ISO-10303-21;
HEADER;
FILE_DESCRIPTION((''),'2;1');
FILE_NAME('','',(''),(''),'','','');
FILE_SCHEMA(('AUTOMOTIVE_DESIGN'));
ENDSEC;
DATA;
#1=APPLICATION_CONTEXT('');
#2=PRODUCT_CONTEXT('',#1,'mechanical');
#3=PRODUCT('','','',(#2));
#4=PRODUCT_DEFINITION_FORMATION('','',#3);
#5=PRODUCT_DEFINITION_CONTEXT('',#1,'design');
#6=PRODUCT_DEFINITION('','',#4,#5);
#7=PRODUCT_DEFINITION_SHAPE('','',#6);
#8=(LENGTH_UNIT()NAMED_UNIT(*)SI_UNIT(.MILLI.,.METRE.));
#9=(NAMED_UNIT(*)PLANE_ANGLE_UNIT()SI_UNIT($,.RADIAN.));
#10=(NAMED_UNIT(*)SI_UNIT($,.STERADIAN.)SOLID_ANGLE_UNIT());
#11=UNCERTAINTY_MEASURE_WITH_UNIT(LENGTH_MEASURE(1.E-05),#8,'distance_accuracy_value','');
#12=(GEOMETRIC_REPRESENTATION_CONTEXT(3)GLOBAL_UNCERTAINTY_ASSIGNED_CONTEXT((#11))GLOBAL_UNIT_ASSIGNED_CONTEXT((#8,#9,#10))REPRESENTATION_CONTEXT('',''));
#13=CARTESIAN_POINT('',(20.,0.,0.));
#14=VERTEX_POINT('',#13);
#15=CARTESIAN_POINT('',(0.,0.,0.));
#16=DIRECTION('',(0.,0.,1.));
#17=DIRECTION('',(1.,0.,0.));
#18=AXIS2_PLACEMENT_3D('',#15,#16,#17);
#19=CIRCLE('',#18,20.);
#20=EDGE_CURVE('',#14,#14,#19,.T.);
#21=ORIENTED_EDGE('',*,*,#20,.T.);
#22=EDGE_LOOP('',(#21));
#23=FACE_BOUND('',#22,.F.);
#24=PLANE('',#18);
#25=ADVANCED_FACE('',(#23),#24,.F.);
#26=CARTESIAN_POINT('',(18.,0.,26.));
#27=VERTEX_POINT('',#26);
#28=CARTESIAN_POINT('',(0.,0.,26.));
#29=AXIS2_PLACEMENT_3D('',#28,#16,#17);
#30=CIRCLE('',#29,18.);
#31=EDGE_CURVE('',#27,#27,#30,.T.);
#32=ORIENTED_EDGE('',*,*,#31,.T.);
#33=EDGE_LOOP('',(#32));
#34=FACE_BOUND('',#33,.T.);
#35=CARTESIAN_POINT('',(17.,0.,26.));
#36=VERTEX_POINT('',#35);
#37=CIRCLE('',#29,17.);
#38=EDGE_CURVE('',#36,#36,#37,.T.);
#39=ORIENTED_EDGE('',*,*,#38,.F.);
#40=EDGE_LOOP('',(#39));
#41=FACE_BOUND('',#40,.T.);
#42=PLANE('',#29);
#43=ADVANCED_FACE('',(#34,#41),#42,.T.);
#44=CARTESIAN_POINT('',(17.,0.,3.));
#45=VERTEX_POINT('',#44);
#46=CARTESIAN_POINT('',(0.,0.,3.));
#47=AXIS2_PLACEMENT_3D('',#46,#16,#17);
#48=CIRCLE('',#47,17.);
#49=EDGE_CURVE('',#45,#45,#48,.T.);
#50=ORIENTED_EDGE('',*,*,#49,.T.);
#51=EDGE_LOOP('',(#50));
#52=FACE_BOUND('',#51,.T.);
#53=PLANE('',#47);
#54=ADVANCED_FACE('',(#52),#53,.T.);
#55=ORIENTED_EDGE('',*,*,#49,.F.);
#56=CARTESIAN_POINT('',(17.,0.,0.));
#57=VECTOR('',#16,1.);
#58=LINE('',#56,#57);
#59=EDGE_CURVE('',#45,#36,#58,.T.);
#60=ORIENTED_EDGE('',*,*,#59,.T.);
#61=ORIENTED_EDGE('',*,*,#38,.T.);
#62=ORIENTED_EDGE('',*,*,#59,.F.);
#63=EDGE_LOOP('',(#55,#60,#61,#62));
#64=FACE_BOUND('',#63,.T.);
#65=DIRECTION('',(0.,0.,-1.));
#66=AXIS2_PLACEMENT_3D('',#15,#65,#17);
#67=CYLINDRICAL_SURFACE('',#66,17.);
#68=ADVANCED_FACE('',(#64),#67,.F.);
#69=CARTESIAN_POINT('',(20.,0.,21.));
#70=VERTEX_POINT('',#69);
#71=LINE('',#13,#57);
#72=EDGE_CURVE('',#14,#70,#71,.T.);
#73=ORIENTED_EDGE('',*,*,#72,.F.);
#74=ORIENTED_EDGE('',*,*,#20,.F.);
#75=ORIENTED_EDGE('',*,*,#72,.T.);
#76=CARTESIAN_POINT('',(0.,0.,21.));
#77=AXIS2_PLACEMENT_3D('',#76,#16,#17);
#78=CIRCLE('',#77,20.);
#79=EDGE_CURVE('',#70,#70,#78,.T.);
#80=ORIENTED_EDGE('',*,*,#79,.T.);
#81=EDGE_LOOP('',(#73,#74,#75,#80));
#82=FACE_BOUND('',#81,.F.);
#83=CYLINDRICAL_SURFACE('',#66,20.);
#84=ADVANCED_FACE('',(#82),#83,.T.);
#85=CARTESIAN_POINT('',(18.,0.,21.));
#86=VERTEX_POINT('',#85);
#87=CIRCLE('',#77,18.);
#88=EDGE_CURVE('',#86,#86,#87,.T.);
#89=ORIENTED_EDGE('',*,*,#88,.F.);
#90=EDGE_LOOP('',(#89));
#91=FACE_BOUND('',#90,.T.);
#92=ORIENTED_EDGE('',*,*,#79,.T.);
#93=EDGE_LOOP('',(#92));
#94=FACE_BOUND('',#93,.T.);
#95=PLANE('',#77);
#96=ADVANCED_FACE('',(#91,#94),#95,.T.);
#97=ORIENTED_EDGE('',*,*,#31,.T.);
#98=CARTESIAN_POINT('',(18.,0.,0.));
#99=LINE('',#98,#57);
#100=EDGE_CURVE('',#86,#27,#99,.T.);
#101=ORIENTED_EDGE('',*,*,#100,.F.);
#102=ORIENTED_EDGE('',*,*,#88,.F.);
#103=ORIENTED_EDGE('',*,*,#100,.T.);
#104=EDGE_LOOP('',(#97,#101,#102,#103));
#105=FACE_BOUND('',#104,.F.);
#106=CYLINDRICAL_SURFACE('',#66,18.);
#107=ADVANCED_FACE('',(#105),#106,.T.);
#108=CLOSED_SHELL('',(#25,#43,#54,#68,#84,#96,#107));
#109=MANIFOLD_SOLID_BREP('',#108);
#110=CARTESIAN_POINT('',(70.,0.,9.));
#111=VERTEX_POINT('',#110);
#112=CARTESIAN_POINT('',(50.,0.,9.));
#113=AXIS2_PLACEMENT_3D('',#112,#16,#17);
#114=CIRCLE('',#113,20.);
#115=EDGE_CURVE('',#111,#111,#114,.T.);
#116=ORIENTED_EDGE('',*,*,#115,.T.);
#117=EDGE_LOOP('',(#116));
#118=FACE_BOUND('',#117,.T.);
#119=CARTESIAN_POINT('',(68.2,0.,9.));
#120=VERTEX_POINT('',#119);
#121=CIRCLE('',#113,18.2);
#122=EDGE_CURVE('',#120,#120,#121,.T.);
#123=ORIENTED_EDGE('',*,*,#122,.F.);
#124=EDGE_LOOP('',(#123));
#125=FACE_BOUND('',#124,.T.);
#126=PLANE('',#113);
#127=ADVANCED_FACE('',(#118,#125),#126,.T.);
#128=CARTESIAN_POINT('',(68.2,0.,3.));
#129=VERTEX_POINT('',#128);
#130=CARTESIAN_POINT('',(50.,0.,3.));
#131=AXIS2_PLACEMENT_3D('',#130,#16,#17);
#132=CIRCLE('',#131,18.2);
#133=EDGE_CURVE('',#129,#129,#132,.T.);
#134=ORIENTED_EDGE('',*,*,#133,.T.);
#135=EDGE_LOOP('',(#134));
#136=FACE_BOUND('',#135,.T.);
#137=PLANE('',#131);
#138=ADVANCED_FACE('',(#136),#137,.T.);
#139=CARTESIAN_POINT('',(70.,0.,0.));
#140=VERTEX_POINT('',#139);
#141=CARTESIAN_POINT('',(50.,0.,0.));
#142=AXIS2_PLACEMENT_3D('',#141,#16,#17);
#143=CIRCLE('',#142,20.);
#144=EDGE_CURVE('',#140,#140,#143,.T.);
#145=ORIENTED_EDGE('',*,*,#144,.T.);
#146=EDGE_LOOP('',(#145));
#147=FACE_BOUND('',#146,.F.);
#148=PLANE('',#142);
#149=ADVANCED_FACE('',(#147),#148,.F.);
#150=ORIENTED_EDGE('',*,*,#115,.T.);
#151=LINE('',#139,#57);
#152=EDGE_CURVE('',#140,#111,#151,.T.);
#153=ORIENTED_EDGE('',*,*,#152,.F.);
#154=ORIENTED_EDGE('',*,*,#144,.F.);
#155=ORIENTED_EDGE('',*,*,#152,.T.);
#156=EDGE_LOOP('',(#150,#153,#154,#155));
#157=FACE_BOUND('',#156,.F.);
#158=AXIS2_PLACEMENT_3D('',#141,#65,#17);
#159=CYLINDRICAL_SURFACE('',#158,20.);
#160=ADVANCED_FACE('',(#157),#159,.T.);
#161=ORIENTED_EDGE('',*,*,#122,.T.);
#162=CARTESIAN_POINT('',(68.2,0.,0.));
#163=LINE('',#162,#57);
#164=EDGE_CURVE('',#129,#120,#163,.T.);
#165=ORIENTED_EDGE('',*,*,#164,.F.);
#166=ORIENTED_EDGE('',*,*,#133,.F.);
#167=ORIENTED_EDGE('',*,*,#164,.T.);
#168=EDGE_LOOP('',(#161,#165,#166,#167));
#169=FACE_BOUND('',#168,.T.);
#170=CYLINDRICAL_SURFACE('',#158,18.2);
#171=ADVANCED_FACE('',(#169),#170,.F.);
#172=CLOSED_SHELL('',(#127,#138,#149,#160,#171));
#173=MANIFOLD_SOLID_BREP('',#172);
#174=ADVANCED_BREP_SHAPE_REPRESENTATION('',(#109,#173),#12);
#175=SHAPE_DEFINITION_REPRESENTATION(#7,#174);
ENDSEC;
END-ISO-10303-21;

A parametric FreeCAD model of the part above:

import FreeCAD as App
import Part
import Sketcher

V = App.Vector
Q = App.Units.Quantity

doc = App.newDocument("Part")
body = doc.addObject("PartDesign::Body", "Body")

# Sketch on XY plane
sketch1 = body.newObject("Sketcher::SketchObject", "Sketch")
sketch1.AttachmentSupport = (doc.getObject("XY_Plane"), [""])
sketch1.MapMode = "FlatFace"
sketch1.addGeometry(Part.Circle(V(0, 0, 0), V(0, 0, 1), 17), False)
sketch1.addConstraint(Sketcher.Constraint("Coincident", 0, 3, -1, 1))
sketch1.addConstraint(Sketcher.Constraint("Diameter", 0, Q("34 mm")))
pad1 = body.newObject("PartDesign::Pad", "Pad")
pad1.Profile = sketch1
pad1.Length = 3

# Sketch on XY plane
sketch2 = body.newObject("Sketcher::SketchObject", "Sketch001")
sketch2.AttachmentSupport = (doc.getObject("XY_Plane"), [""])
sketch2.MapMode = "FlatFace"
sketch2.addGeometry(Part.Circle(V(0, 0, 0), V(0, 0, 1), 18), False)
sketch2.addGeometry(Part.Circle(V(0, 0, 0), V(0, 0, 1), 17), False)
sketch2.addConstraint(Sketcher.Constraint("Coincident", 0, 3, -1, 1))
sketch2.addConstraint(Sketcher.Constraint("Coincident", 1, 3, -1, 1))
sketch2.addConstraint(Sketcher.Constraint("Diameter", 0, Q("36 mm")))
sketch2.addConstraint(Sketcher.Constraint("Diameter", 1, Q("34 mm")))
pad2 = body.newObject("PartDesign::Pad", "Pad001")
pad2.Profile = sketch2
pad2.Length = 26

# Sketch on XY plane
sketch3 = body.newObject("Sketcher::SketchObject", "Sketch002")
sketch3.AttachmentSupport = (doc.getObject("XY_Plane"), [""])
sketch3.MapMode = "FlatFace"
sketch3.addGeometry(Part.Circle(V(0, 0, 0), V(0, 0, 1), 20), False)
sketch3.addGeometry(Part.Circle(V(0, 0, 0), V(0, 0, 1), 18), False)
sketch3.addConstraint(Sketcher.Constraint("Coincident", 0, 3, -1, 1))
sketch3.addConstraint(Sketcher.Constraint("Coincident", 1, 3, -1, 1))
sketch3.addConstraint(Sketcher.Constraint("Diameter", 0, Q("40 mm")))
sketch3.addConstraint(Sketcher.Constraint("Diameter", 1, Q("36 mm")))
pad3 = body.newObject("PartDesign::Pad", "Pad002")
pad3.Profile = sketch3
pad3.Length = 21
body2 = doc.addObject("PartDesign::Body", "Body001")

# Sketch on XY plane
sketch4 = body2.newObject("Sketcher::SketchObject", "Sketch003")
sketch4.AttachmentSupport = (doc.getObject("XY_Plane001"), [""])
sketch4.MapMode = "FlatFace"
sketch4.addGeometry(Part.Circle(V(50, 0, 0), V(0, 0, 1), 18), False)
sketch4.addConstraint(Sketcher.Constraint("PointOnObject", 0, 3, -1))
sketch4.addConstraint(Sketcher.Constraint("Diameter", 0, Q("36.4 mm")))
sketch4.addConstraint(Sketcher.Constraint("DistanceX", -1, 1, 0, 3, Q("50 mm")))
pad4 = body2.newObject("PartDesign::Pad", "Pad003")
pad4.Profile = sketch4
pad4.Length = 3

# Sketch on XY plane
sketch5 = body2.newObject("Sketcher::SketchObject", "Sketch004")
sketch5.AttachmentSupport = (doc.getObject("XY_Plane001"), [""])
sketch5.MapMode = "FlatFace"
sketch5.addGeometry(Part.Circle(V(50, 0, 0), V(0, 0, 1), 20), False)
sketch5.addGeometry(Part.Circle(V(50, 0, 0), V(0, 0, 1), 18), False)
sketch5.addConstraint(Sketcher.Constraint("Coincident", 1, 3, 0, 3))
sketch5.addConstraint(Sketcher.Constraint("PointOnObject", 0, 3, -1))
sketch5.addConstraint(Sketcher.Constraint("Diameter", 0, Q("40 mm")))
sketch5.addConstraint(Sketcher.Constraint("Diameter", 1, Q("36.4 mm")))
sketch5.addConstraint(Sketcher.Constraint("DistanceX", -1, 1, 0, 3, Q("50 mm")))
pad5 = body2.newObject("PartDesign::Pad", "Pad004")
pad5.Profile = sketch5
pad5.Length = 9

doc.recompute()
